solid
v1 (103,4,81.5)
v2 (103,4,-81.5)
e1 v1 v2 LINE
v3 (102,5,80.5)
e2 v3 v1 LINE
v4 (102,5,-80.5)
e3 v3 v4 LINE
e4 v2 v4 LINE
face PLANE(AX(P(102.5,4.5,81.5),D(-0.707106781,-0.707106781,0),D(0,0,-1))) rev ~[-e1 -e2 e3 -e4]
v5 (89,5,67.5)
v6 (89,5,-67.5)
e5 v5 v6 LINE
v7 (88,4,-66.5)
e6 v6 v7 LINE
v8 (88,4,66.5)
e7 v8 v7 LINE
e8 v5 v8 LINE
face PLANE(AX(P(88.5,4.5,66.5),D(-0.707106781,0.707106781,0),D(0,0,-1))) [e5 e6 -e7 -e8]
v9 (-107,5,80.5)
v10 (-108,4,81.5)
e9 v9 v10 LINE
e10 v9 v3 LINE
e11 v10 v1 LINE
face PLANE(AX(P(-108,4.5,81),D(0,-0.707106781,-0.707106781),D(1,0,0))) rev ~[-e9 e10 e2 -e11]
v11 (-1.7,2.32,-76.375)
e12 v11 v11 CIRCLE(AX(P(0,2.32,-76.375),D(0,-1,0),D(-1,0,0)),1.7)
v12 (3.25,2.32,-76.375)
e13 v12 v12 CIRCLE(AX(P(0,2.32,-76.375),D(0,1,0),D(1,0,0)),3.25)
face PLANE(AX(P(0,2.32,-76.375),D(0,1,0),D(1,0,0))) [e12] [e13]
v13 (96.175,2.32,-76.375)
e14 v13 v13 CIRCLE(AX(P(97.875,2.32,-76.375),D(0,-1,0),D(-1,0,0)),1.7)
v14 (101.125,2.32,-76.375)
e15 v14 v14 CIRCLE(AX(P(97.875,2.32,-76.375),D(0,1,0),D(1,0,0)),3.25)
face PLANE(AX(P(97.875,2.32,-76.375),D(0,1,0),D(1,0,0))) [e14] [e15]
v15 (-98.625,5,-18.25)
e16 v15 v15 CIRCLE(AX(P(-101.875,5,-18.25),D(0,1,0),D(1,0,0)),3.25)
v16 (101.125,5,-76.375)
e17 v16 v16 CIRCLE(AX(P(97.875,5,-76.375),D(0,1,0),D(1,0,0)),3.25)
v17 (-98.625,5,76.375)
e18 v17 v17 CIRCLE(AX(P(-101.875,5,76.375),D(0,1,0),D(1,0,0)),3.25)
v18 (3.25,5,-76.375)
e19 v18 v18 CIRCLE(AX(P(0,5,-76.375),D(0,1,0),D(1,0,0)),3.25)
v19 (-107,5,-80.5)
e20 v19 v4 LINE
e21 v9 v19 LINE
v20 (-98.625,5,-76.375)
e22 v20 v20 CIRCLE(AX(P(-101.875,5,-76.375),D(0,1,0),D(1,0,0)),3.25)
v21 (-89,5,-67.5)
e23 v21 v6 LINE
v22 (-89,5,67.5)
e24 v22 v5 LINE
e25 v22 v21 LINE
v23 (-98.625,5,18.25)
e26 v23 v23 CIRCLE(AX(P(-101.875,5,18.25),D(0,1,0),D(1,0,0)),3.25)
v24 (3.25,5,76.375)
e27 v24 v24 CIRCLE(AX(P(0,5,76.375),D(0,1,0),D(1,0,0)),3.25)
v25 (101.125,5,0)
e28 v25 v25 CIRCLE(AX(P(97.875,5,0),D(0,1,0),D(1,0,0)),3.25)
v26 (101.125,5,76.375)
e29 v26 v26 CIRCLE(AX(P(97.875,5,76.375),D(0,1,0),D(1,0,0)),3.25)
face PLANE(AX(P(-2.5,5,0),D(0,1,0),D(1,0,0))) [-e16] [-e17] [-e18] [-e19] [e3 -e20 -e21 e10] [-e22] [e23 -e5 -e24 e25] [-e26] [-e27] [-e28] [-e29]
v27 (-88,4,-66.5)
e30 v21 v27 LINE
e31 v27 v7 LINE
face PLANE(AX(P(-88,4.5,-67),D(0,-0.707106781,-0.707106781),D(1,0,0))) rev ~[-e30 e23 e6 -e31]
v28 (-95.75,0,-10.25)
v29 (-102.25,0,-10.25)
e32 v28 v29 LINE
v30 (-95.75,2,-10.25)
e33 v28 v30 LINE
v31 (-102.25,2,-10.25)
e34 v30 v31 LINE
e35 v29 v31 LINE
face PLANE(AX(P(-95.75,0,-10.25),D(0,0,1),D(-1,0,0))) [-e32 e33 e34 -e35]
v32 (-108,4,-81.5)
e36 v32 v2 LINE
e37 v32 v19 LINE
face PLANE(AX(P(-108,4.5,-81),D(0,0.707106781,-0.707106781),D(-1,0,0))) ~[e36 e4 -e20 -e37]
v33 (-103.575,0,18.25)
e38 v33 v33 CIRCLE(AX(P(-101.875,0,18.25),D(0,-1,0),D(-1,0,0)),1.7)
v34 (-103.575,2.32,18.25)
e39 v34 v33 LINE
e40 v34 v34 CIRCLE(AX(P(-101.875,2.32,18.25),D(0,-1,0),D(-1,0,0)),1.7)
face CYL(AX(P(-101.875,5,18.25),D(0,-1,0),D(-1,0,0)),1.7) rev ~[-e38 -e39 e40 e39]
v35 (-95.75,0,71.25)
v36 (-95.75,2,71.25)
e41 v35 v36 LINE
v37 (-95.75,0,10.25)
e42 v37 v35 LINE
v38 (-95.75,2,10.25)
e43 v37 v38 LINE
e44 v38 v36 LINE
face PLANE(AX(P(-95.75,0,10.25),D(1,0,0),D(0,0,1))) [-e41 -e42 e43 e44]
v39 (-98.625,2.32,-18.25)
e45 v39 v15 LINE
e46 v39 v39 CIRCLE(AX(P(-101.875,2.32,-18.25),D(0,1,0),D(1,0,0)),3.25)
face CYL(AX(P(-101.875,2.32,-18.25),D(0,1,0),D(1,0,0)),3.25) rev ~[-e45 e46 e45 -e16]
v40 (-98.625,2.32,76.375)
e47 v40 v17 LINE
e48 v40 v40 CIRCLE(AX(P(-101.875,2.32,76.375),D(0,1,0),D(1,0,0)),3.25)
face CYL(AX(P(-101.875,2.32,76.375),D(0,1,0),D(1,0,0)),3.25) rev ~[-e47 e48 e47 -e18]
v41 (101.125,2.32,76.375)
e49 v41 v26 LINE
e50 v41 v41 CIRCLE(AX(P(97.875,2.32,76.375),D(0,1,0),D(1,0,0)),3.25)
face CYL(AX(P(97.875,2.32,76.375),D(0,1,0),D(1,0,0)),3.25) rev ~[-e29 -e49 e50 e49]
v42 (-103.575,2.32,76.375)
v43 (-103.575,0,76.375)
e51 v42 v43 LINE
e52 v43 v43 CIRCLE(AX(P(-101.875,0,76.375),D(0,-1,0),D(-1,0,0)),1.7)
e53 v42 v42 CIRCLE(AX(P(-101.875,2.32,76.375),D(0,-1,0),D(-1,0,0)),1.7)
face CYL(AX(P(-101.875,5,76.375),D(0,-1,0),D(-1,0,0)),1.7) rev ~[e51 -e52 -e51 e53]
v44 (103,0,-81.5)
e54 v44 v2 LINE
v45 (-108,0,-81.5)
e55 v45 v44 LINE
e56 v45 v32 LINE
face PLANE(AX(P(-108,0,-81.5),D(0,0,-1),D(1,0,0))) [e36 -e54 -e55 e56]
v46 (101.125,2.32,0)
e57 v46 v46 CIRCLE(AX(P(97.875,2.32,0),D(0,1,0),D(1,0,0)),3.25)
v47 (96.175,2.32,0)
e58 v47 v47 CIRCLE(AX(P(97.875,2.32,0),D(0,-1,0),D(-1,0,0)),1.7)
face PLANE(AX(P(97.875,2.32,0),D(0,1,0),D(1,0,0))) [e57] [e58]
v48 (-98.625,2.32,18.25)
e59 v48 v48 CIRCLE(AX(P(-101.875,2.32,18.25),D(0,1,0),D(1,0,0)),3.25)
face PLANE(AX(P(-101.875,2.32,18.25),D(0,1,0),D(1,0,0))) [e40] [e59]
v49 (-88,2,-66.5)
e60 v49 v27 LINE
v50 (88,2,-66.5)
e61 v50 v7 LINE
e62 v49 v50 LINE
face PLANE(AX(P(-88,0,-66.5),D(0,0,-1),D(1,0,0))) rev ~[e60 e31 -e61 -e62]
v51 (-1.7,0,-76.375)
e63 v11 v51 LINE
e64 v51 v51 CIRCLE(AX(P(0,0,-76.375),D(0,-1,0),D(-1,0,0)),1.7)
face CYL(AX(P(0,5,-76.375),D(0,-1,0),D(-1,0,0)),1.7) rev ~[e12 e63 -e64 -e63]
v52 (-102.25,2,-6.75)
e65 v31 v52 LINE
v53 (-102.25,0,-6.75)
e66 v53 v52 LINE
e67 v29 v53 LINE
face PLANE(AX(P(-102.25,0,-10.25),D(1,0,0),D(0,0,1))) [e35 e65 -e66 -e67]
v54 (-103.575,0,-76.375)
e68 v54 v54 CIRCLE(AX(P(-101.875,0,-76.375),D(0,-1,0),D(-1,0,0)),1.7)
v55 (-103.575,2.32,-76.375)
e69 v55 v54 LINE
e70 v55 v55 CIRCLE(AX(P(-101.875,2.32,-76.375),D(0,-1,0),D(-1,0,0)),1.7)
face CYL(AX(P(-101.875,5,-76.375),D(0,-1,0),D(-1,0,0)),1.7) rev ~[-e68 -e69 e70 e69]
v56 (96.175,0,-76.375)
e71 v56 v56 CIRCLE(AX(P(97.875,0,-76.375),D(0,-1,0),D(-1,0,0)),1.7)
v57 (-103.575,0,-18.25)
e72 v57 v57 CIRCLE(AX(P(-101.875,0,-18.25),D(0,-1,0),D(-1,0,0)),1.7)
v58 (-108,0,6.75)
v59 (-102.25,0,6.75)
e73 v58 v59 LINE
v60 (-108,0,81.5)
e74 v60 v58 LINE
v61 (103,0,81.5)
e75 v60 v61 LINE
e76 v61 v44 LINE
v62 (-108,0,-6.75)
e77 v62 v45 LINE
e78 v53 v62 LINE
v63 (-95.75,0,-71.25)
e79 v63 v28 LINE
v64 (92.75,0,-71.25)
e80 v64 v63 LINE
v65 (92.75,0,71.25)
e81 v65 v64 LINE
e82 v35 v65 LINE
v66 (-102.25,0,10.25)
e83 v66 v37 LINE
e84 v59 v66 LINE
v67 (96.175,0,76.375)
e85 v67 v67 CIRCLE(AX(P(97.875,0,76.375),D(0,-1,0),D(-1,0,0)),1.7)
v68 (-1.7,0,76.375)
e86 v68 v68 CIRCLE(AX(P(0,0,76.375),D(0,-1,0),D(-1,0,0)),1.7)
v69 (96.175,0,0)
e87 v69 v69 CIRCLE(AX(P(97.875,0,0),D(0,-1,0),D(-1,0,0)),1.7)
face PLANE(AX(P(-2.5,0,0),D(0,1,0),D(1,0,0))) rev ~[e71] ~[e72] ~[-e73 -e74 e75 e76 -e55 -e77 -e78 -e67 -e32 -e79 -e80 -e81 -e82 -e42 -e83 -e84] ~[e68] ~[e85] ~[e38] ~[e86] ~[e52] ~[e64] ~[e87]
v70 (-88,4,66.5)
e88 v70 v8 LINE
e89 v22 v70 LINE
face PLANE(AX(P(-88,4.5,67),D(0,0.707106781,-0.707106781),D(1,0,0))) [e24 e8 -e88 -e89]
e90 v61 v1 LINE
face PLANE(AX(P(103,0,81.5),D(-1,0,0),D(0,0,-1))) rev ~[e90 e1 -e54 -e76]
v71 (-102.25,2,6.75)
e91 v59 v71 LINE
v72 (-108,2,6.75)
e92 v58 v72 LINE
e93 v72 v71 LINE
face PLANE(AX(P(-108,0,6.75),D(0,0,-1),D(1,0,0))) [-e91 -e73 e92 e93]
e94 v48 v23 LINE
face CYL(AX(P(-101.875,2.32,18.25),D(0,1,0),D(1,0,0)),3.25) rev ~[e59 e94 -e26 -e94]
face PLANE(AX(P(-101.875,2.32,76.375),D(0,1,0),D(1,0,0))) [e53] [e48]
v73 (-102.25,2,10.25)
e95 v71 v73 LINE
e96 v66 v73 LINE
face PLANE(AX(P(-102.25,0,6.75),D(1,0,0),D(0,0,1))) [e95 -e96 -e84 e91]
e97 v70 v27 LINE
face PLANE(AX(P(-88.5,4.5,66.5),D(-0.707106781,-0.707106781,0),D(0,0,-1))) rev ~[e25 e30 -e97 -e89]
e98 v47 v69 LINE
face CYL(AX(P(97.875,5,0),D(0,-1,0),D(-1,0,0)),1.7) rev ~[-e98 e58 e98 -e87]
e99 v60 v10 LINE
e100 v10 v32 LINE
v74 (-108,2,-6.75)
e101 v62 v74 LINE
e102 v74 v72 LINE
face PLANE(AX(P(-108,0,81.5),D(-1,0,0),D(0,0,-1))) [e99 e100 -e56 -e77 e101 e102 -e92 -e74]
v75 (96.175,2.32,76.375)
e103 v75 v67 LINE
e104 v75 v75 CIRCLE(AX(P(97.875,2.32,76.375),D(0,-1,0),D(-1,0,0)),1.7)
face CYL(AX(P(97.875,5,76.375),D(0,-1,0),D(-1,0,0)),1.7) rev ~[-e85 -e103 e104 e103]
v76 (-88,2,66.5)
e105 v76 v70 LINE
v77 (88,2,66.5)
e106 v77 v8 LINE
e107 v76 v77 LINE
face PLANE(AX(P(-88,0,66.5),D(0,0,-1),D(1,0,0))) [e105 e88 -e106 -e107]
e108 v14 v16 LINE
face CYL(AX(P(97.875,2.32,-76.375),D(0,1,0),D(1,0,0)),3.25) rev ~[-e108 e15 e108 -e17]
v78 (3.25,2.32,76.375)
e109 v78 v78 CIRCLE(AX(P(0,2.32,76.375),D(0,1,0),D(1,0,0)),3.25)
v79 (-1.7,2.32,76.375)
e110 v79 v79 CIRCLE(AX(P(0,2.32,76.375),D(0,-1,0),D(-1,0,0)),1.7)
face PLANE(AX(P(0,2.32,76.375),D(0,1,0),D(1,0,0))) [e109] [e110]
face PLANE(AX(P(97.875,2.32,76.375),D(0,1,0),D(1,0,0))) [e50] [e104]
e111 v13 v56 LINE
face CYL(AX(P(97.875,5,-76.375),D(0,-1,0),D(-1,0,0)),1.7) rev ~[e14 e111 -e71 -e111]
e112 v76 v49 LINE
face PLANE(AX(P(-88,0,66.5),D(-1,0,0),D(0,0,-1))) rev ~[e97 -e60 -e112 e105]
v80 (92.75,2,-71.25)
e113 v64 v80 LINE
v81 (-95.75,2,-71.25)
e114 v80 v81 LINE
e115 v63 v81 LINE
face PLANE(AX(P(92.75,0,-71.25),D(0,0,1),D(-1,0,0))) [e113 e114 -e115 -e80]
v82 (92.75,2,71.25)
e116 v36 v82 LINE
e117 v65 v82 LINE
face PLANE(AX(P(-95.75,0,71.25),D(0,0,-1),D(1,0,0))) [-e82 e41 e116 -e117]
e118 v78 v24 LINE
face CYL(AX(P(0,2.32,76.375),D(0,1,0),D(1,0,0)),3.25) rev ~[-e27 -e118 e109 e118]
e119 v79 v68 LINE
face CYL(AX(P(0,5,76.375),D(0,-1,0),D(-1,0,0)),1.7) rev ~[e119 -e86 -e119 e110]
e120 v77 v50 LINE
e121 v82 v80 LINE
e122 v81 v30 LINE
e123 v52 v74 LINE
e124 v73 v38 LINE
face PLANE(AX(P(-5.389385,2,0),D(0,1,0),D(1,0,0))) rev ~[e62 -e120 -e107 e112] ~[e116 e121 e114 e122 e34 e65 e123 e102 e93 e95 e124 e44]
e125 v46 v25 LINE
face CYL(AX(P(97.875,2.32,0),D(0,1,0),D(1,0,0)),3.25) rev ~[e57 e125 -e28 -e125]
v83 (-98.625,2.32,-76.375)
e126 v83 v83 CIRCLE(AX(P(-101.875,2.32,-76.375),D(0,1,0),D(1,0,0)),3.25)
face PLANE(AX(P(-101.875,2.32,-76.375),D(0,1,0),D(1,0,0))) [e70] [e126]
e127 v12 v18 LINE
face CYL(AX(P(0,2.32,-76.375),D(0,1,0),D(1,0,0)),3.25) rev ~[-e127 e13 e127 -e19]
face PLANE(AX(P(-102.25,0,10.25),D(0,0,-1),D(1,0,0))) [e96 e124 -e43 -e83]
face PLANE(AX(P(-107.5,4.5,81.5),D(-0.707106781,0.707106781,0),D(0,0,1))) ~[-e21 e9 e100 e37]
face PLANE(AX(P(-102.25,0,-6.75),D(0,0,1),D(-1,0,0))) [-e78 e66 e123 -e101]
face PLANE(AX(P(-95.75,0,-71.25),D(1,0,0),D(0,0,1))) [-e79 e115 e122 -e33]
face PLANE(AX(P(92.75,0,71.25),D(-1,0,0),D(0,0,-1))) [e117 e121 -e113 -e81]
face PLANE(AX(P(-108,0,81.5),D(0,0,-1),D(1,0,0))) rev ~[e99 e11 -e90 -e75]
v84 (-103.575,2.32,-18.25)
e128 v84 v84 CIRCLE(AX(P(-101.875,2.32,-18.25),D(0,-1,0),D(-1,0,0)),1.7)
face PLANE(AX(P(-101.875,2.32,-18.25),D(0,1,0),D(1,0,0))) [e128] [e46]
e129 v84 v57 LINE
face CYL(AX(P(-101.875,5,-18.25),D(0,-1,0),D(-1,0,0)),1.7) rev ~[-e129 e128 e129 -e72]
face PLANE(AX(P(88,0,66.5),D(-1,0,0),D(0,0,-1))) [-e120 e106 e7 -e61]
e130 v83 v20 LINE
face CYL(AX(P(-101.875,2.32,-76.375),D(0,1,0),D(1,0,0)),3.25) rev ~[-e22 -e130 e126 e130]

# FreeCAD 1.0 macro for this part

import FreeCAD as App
import Part
import Sketcher
Q = App.Units.Quantity


def edges_at(feature, points):
    """Names of the edges that pass closest to the given points."""
    edges = feature.Shape.Edges
    near = lambda p: min(range(len(edges)), key=lambda i: edges[i].distToShape(Part.Vertex(*p))[0])
    return sorted({f"Edge{near(p) + 1}" for p in points})

doc = App.newDocument("Part")
body = doc.addObject("PartDesign::Body", "Body")

# Sketch on XZ plane
sketch1 = doc.addObject("Sketcher::SketchObject", "Sketch")
body.addObject(sketch1)
sketch1.AttachmentSupport = (doc.XZ_Plane, [""])
sketch1.MapMode = "FlatFace"
sketch1.addGeometry([
    Part.LineSegment(App.Vector(-108, -82, 0), App.Vector(-108, 82, 0)),  # 0
    Part.LineSegment(App.Vector(-108, 82, 0), App.Vector(103, 82, 0)),  # 1
    Part.LineSegment(App.Vector(103, 82, 0), App.Vector(103, -82, 0)),  # 2
    Part.LineSegment(App.Vector(103, -82, 0), App.Vector(-108, -82, 0)),  # 3
    Part.LineSegment(App.Vector(88, 66, 0), App.Vector(-88, 66, 0)),  # 4
    Part.LineSegment(App.Vector(-88, 66, 0), App.Vector(-88, -66, 0)),  # 5
    Part.LineSegment(App.Vector(-88, -66, 0), App.Vector(88, -66, 0)),  # 6
    Part.LineSegment(App.Vector(88, -66, 0), App.Vector(88, 66, 0)),  # 7
], False)
sketch1.addConstraint([
    Sketcher.Constraint("Coincident", 0, 2, 1, 1),
    Sketcher.Constraint("Coincident", 1, 2, 2, 1),
    Sketcher.Constraint("Coincident", 2, 2, 3, 1),
    Sketcher.Constraint("Coincident", 3, 2, 0, 1),
    Sketcher.Constraint("Coincident", 4, 2, 5, 1),
    Sketcher.Constraint("Coincident", 5, 2, 6, 1),
    Sketcher.Constraint("Coincident", 6, 2, 7, 1),
    Sketcher.Constraint("Coincident", 7, 2, 4, 1),
    Sketcher.Constraint("Vertical", 0),
    Sketcher.Constraint("Horizontal", 1),
    Sketcher.Constraint("Vertical", 2),
    Sketcher.Constraint("Horizontal", 3),
    Sketcher.Constraint("Horizontal", 4),
    Sketcher.Constraint("Vertical", 5),
    Sketcher.Constraint("Horizontal", 6),
    Sketcher.Constraint("Vertical", 7),
    Sketcher.Constraint("Symmetric", 4, 2, 6, 2, -1, 1),
    Sketcher.Constraint("DistanceX", 1, 1, 1, 2, Q("211 mm")),
    Sketcher.Constraint("DistanceX", 4, 2, 4, 1, Q("176 mm")),
    Sketcher.Constraint("DistanceY", 0, 1, 0, 2, Q("163 mm")),
    Sketcher.Constraint("DistanceY", 5, 2, 5, 1, Q("133 mm")),
    Sketcher.Constraint("DistanceX", 0, 2, -1, 1, Q("108 mm")),
    Sketcher.Constraint("DistanceY", 4, 2, 0, 2, Q("15 mm")),
])
pad1 = doc.addObject("PartDesign::Pad", "Pad")
body.addObject(pad1)
pad1.Profile = sketch1
pad1.Length = 5
pad1.Reversed = True

# Sketch on XZ plane
sketch2 = doc.addObject("Sketcher::SketchObject", "Sketch001")
body.addObject(sketch2)
sketch2.AttachmentSupport = (doc.XZ_Plane, [""])
sketch2.MapMode = "FlatFace"
sketch2.addGeometry([
    Part.LineSegment(App.Vector(-95.8, 71.2, 0), App.Vector(92.8, 71.2, 0)),  # 0
    Part.LineSegment(App.Vector(92.8, 71.2, 0), App.Vector(92.8, -71.2, 0)),  # 1
    Part.LineSegment(App.Vector(92.8, -71.2, 0), App.Vector(-95.8, -71.2, 0)),  # 2
    Part.LineSegment(App.Vector(-95.8, -71.2, 0), App.Vector(-95.8, -10.2, 0)),  # 3
    Part.LineSegment(App.Vector(-95.8, -10.2, 0), App.Vector(-102.2, -10.2, 0)),  # 4
    Part.LineSegment(App.Vector(-102.2, -10.2, 0), App.Vector(-102.2, -6.8, 0)),  # 5
    Part.LineSegment(App.Vector(-102.2, -6.8, 0), App.Vector(-108, -6.8, 0)),  # 6
    Part.LineSegment(App.Vector(-108, -6.8, 0), App.Vector(-108, 6.8, 0)),  # 7
    Part.LineSegment(App.Vector(-108, 6.8, 0), App.Vector(-102.2, 6.8, 0)),  # 8
    Part.LineSegment(App.Vector(-102.2, 6.8, 0), App.Vector(-102.2, 10.2, 0)),  # 9
    Part.LineSegment(App.Vector(-102.2, 10.2, 0), App.Vector(-95.8, 10.2, 0)),  # 10
    Part.LineSegment(App.Vector(-95.8, 10.2, 0), App.Vector(-95.8, 71.2, 0)),  # 11
], False)
sketch2.addConstraint([
    Sketcher.Constraint("Coincident", 0, 2, 1, 1),
    Sketcher.Constraint("Coincident", 1, 2, 2, 1),
    Sketcher.Constraint("Coincident", 2, 2, 3, 1),
    Sketcher.Constraint("Coincident", 3, 2, 4, 1),
    Sketcher.Constraint("Coincident", 4, 2, 5, 1),
    Sketcher.Constraint("Coincident", 5, 2, 6, 1),
    Sketcher.Constraint("Coincident", 6, 2, 7, 1),
    Sketcher.Constraint("Coincident", 7, 2, 8, 1),
    Sketcher.Constraint("Coincident", 8, 2, 9, 1),
    Sketcher.Constraint("Coincident", 9, 2, 10, 1),
    Sketcher.Constraint("Coincident", 10, 2, 11, 1),
    Sketcher.Constraint("Coincident", 11, 2, 0, 1),
    Sketcher.Constraint("Horizontal", 0),
    Sketcher.Constraint("Vertical", 1),
    Sketcher.Constraint("Horizontal", 2),
    Sketcher.Constraint("Vertical", 3),
    Sketcher.Constraint("Horizontal", 4),
    Sketcher.Constraint("Vertical", 5),
    Sketcher.Constraint("Horizontal", 6),
    Sketcher.Constraint("Vertical", 7),
    Sketcher.Constraint("Horizontal", 8),
    Sketcher.Constraint("Vertical", 9),
    Sketcher.Constraint("Horizontal", 10),
    Sketcher.Constraint("Vertical", 11),
    Sketcher.Constraint("Symmetric", 5, 2, 8, 2, -1),
    Sketcher.Constraint("Symmetric", 3, 2, 10, 2, -1),
    Sketcher.Constraint("Equal", 3, 11),
    Sketcher.Constraint("DistanceY", 3, 1, 3, 2, Q("61 mm")),
    Sketcher.Constraint("DistanceX", 0, 1, 0, 2, Q("188.5 mm")),
    Sketcher.Constraint("DistanceX", 4, 2, 4, 1, Q("6.5 mm")),
    Sketcher.Constraint("DistanceY", 1, 2, 1, 1, Q("142.5 mm")),
    Sketcher.Constraint("DistanceY", 5, 1, 5, 2, Q("3.5 mm")),
    Sketcher.Constraint("DistanceX", 6, 2, -1, 1, Q("108 mm")),
    Sketcher.Constraint("DistanceX", 6, 2, 6, 1, Q("5.75 mm")),
])
pocket1 = doc.addObject("PartDesign::Pocket", "Pocket")
body.addObject(pocket1)
pocket1.Profile = sketch2
pocket1.Length = 2

# Sketch on XZ plane
sketch3 = doc.addObject("Sketcher::SketchObject", "Sketch002")
body.addObject(sketch3)
sketch3.AttachmentSupport = (doc.XZ_Plane, [""])
sketch3.MapMode = "FlatFace"
sketch3.AttachmentOffset = App.Placement(App.Vector(0, 0, -5), App.Rotation())
sketch3.addGeometry([
    Part.Circle(App.Vector(-101.9, -76.4, 0), App.Vector(0, 0, 1), 1.7),  # 0
    Part.Circle(App.Vector(0, -76.4, 0), App.Vector(0, 0, 1), 1.7),  # 1
    Part.Circle(App.Vector(97.9, -76.4, 0), App.Vector(0, 0, 1), 1.7),  # 2
    Part.Circle(App.Vector(97.9, 76.4, 0), App.Vector(0, 0, 1), 1.7),  # 3
    Part.Circle(App.Vector(97.9, 0, 0), App.Vector(0, 0, 1), 1.7),  # 4
    Part.Circle(App.Vector(0, 76.4, 0), App.Vector(0, 0, 1), 1.7),  # 5
    Part.Circle(App.Vector(-101.9, 76.4, 0), App.Vector(0, 0, 1), 1.7),  # 6
    Part.Circle(App.Vector(-101.9, 18.2, 0), App.Vector(0, 0, 1), 1.7),  # 7
    Part.Circle(App.Vector(-101.9, -18.2, 0), App.Vector(0, 0, 1), 1.7),  # 8
], False)
sketch3.addConstraint([
    Sketcher.Constraint("Equal", 0, 1),
    Sketcher.Constraint("Equal", 1, 2),
    Sketcher.Constraint("Equal", 2, 3),
    Sketcher.Constraint("Equal", 3, 4),
    Sketcher.Constraint("Equal", 4, 5),
    Sketcher.Constraint("Equal", 5, 6),
    Sketcher.Constraint("Equal", 6, 7),
    Sketcher.Constraint("Equal", 7, 8),
    Sketcher.Constraint("Symmetric", 1, 3, 5, 3, -1, 1),
    Sketcher.Constraint("Symmetric", 2, 3, 3, 3, -1),
    Sketcher.Constraint("Symmetric", 0, 3, 6, 3, -1),
    Sketcher.Constraint("Symmetric", 7, 3, 8, 3, -1),
    Sketcher.Constraint("PointOnObject", 1, 3, -2),
    Sketcher.Constraint("PointOnObject", 4, 3, -1),
    Sketcher.Constraint("Horizontal", 0, 3, 1, 3),
    Sketcher.Constraint("Horizontal", 1, 3, 2, 3),
    Sketcher.Constraint("Vertical", 3, 3, 4, 3),
    Sketcher.Constraint("Vertical", 6, 3, 7, 3),
    Sketcher.Constraint("Diameter", 0, Q("3.4 mm")),
    Sketcher.Constraint("DistanceY", 8, 3, 7, 3, Q("36.5 mm")),
    Sketcher.Constraint("DistanceX", 0, 3, 2, 3, Q("199.75 mm")),
    Sketcher.Constraint("DistanceY", 2, 3, 3, 3, Q("152.75 mm")),
    Sketcher.Constraint("DistanceX", 0, 3, -1, 1, Q("101.875 mm")),
])
doc.recompute()
hole = doc.addObject("PartDesign::Hole", "Hole")
body.addObject(hole)
hole.Profile = sketch3
hole.ThreadType = "None"
hole.Diameter = 3.4
hole.DepthType = "Dimension"
hole.Depth = 5
hole.DrillPoint = "Flat"
hole.HoleCutType = "Counterbore"
hole.HoleCutDiameter = 6.5
hole.HoleCutDepth = 2.68
hole.Reversed = True
doc.recompute()

chamfer = doc.addObject("PartDesign::Chamfer", "Chamfer")
body.addObject(chamfer)
chamfer.Base = (hole, edges_at(hole, [
    (-2.5, 5, 81.5),
    (0, 5, -66.5),
    (-88, 5, 0),
    (0, 5, 66.5),
    (-108, 5, 0),
    (88, 5, 0),
    (-2.5, 5, -81.5),
    (103, 5, 0),
]))
chamfer.Size = 1

doc.recompute()
